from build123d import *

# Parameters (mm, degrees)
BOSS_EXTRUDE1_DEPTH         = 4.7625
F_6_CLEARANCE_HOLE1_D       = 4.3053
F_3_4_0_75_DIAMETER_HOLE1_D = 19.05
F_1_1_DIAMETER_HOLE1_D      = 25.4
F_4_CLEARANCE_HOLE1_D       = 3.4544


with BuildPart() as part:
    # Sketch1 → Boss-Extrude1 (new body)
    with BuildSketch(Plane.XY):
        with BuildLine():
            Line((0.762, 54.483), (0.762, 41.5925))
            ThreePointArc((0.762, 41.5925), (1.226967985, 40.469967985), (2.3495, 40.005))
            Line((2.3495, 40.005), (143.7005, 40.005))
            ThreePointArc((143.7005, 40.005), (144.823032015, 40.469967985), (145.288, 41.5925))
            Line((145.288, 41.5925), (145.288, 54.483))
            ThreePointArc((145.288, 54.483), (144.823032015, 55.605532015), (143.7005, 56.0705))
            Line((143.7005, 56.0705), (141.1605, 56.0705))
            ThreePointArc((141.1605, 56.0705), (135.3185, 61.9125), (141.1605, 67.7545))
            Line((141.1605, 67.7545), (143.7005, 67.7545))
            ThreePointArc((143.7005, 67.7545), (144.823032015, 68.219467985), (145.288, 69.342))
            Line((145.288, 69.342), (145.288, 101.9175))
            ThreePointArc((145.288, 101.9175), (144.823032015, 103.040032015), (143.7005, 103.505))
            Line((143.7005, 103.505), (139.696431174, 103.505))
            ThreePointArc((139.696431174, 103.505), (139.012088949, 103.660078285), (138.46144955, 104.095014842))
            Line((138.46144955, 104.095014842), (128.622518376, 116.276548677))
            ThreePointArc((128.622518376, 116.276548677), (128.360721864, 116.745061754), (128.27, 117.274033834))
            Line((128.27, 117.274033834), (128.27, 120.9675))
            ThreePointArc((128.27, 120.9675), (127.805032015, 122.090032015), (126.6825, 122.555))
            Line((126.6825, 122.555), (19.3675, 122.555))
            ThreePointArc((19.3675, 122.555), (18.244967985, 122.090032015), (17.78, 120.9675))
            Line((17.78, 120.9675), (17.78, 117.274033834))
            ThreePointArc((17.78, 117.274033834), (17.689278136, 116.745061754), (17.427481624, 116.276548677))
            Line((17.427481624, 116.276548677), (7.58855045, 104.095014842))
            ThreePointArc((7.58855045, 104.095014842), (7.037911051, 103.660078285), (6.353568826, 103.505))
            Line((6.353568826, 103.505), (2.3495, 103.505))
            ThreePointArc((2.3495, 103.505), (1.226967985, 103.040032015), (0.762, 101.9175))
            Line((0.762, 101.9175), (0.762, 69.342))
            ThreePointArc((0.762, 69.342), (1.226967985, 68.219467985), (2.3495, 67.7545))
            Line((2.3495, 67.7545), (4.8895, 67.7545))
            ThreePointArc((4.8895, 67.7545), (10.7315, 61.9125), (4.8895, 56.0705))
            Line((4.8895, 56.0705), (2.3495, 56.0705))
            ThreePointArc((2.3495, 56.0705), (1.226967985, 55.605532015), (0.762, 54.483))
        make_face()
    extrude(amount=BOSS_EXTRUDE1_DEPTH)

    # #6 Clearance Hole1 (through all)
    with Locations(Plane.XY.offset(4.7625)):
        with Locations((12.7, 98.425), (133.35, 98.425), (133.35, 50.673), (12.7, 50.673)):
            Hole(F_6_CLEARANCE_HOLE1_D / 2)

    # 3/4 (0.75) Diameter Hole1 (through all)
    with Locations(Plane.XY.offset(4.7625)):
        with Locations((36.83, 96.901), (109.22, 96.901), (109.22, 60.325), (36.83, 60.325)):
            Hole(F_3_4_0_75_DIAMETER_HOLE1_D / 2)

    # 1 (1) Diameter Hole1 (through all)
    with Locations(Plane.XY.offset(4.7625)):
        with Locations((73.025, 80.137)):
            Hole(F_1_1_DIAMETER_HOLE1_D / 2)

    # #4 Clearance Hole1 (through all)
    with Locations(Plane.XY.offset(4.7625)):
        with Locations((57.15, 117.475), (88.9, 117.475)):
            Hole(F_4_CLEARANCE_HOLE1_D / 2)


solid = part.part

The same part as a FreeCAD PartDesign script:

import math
import FreeCAD as App
import Part
import Sketcher
from FreeCAD import Vector
Q = App.Units.Quantity

doc = App.newDocument("Part")
body = doc.addObject("PartDesign::Body", "Body")

sketch1 = body.newObject("Sketcher::SketchObject", "Sketch")
sketch1.AttachmentSupport = (doc.getObject("XY_Plane"), [""])
sketch1.MapMode = "FlatFace"
sketch1.addGeometry([
    Part.LineSegment(Vector(0.8, 54.5, 0), Vector(0.8, 41.6, 0)),
    Part.ArcOfCircle(Part.Circle(Vector(2.3, 41.6, 0), Vector(0, 0, 1), 1.6), math.radians(180), math.radians(270)),
    Part.LineSegment(Vector(2.3, 40, 0), Vector(143.7, 40, 0)),
    Part.ArcOfCircle(Part.Circle(Vector(143.7, 41.6, 0), Vector(0, 0, 1), 1.6), math.radians(-90), math.radians(0)),
    Part.LineSegment(Vector(145.3, 41.6, 0), Vector(145.3, 54.5, 0)),
    Part.ArcOfCircle(Part.Circle(Vector(143.7, 54.5, 0), Vector(0, 0, 1), 1.6), math.radians(0), math.radians(90)),
    Part.LineSegment(Vector(143.7, 56.1, 0), Vector(141.2, 56.1, 0)),
    Part.ArcOfCircle(Part.Circle(Vector(141.2, 61.9, 0), Vector(0, 0, 1), 5.8), math.radians(90), math.radians(270)),
    Part.LineSegment(Vector(141.2, 67.8, 0), Vector(143.7, 67.8, 0)),
    Part.ArcOfCircle(Part.Circle(Vector(143.7, 69.3, 0), Vector(0, 0, 1), 1.6), math.radians(-90), math.radians(0)),
    Part.LineSegment(Vector(145.3, 69.3, 0), Vector(145.3, 101.9, 0)),
    Part.ArcOfCircle(Part.Circle(Vector(143.7, 101.9, 0), Vector(0, 0, 1), 1.6), math.radians(0), math.radians(90)),
    Part.LineSegment(Vector(143.7, 103.5, 0), Vector(139.7, 103.5, 0)),
    Part.ArcOfCircle(Part.Circle(Vector(139.7, 105.1, 0), Vector(0, 0, 1), 1.6), math.radians(-141), math.radians(-90)),
    Part.LineSegment(Vector(138.5, 104.1, 0), Vector(128.6, 116.3, 0)),
    Part.ArcOfCircle(Part.Circle(Vector(129.9, 117.3, 0), Vector(0, 0, 1), 1.6), math.radians(180), math.radians(219)),
    Part.LineSegment(Vector(128.3, 117.3, 0), Vector(128.3, 121, 0)),
    Part.ArcOfCircle(Part.Circle(Vector(126.7, 121, 0), Vector(0, 0, 1), 1.6), math.radians(0), math.radians(90)),
    Part.LineSegment(Vector(126.7, 122.6, 0), Vector(19.4, 122.6, 0)),
    Part.ArcOfCircle(Part.Circle(Vector(19.4, 121, 0), Vector(0, 0, 1), 1.6), math.radians(90), math.radians(180)),
    Part.LineSegment(Vector(17.8, 121, 0), Vector(17.8, 117.3, 0)),
    Part.ArcOfCircle(Part.Circle(Vector(16.2, 117.3, 0), Vector(0, 0, 1), 1.6), math.radians(-39), math.radians(0)),
    Part.LineSegment(Vector(17.4, 116.3, 0), Vector(7.6, 104.1, 0)),
    Part.ArcOfCircle(Part.Circle(Vector(6.4, 105.1, 0), Vector(0, 0, 1), 1.6), math.radians(-90), math.radians(-39)),
    Part.LineSegment(Vector(6.4, 103.5, 0), Vector(2.3, 103.5, 0)),
    Part.ArcOfCircle(Part.Circle(Vector(2.3, 101.9, 0), Vector(0, 0, 1), 1.6), math.radians(90), math.radians(180)),
    Part.LineSegment(Vector(0.8, 101.9, 0), Vector(0.8, 69.3, 0)),
    Part.ArcOfCircle(Part.Circle(Vector(2.3, 69.3, 0), Vector(0, 0, 1), 1.6), math.radians(180), math.radians(270)),
    Part.LineSegment(Vector(2.3, 67.8, 0), Vector(4.9, 67.8, 0)),
    Part.ArcOfCircle(Part.Circle(Vector(4.9, 61.9, 0), Vector(0, 0, 1), 5.8), math.radians(-90), math.radians(90)),
    Part.LineSegment(Vector(4.9, 56.1, 0), Vector(2.3, 56.1, 0)),
    Part.ArcOfCircle(Part.Circle(Vector(2.3, 54.5, 0), Vector(0, 0, 1), 1.6), math.radians(90), math.radians(180)),
], False)
sketch1.addConstraint([
    Sketcher.Constraint("Tangent", 0, 2, 1, 1),
    Sketcher.Constraint("Tangent", 1, 2, 2, 1),
    Sketcher.Constraint("Tangent", 2, 2, 3, 1),
    Sketcher.Constraint("Tangent", 3, 2, 4, 1),
    Sketcher.Constraint("Tangent", 4, 2, 5, 1),
    Sketcher.Constraint("Tangent", 5, 2, 6, 1),
    Sketcher.Constraint("Tangent", 6, 2, 7, 2),
    Sketcher.Constraint("Tangent", 7, 1, 8, 1),
    Sketcher.Constraint("Tangent", 8, 2, 9, 1),
    Sketcher.Constraint("Tangent", 9, 2, 10, 1),
    Sketcher.Constraint("Tangent", 10, 2, 11, 1),
    Sketcher.Constraint("Tangent", 11, 2, 12, 1),
    Sketcher.Constraint("Tangent", 12, 2, 13, 2),
    Sketcher.Constraint("Tangent", 13, 1, 14, 1),
    Sketcher.Constraint("Tangent", 14, 2, 15, 2),
    Sketcher.Constraint("Tangent", 15, 1, 16, 1),
    Sketcher.Constraint("Tangent", 16, 2, 17, 1),
    Sketcher.Constraint("Tangent", 17, 2, 18, 1),
    Sketcher.Constraint("Tangent", 18, 2, 19, 1),
    Sketcher.Constraint("Tangent", 19, 2, 20, 1),
    Sketcher.Constraint("Tangent", 20, 2, 21, 2),
    Sketcher.Constraint("Tangent", 21, 1, 22, 1),
    Sketcher.Constraint("Tangent", 22, 2, 23, 2),
    Sketcher.Constraint("Tangent", 23, 1, 24, 1),
    Sketcher.Constraint("Tangent", 24, 2, 25, 1),
    Sketcher.Constraint("Tangent", 25, 2, 26, 1),
    Sketcher.Constraint("Tangent", 26, 2, 27, 1),
    Sketcher.Constraint("Tangent", 27, 2, 28, 1),
    Sketcher.Constraint("Tangent", 28, 2, 29, 2),
    Sketcher.Constraint("Tangent", 29, 1, 30, 1),
    Sketcher.Constraint("Tangent", 30, 2, 31, 1),
    Sketcher.Constraint("Tangent", 31, 2, 0, 1),
    Sketcher.Constraint("Vertical", 0),
    Sketcher.Constraint("Horizontal", 2),
    Sketcher.Constraint("Vertical", 4),
    Sketcher.Constraint("Horizontal", 6),
    Sketcher.Constraint("Horizontal", 8),
    Sketcher.Constraint("Vertical", 10),
    Sketcher.Constraint("Horizontal", 12),
    Sketcher.Constraint("Vertical", 16),
    Sketcher.Constraint("Horizontal", 18),
    Sketcher.Constraint("Vertical", 20),
    Sketcher.Constraint("Horizontal", 24),
    Sketcher.Constraint("Vertical", 26),
    Sketcher.Constraint("Horizontal", 28),
    Sketcher.Constraint("Horizontal", 30),
    Sketcher.Constraint("Equal", 1, 3),
    Sketcher.Constraint("Equal", 3, 5),
    Sketcher.Constraint("Equal", 5, 9),
    Sketcher.Constraint("Equal", 9, 11),
    Sketcher.Constraint("Equal", 11, 13),
    Sketcher.Constraint("Equal", 13, 15),
    Sketcher.Constraint("Equal", 15, 17),
    Sketcher.Constraint("Equal", 17, 19),
    Sketcher.Constraint("Equal", 19, 21),
    Sketcher.Constraint("Equal", 21, 23),
    Sketcher.Constraint("Equal", 23, 25),
    Sketcher.Constraint("Equal", 25, 27),
    Sketcher.Constraint("Equal", 7, 29),
    Sketcher.Constraint("Equal", 27, 31),
    Sketcher.Constraint("Horizontal", 15, 3, 21, 3),
    Sketcher.Constraint("Horizontal", 13, 3, 23, 3),
    Sketcher.Constraint("Horizontal", 9, 3, 27, 3),
    Sketcher.Constraint("Horizontal", 14, 2, 21, 1),
    Sketcher.Constraint("Vertical", 5, 3, 9, 3),
    Sketcher.Constraint("Vertical", 1, 3, 25, 3),
    Sketcher.Constraint("Equal", 12, 24),
    Sketcher.Constraint("Equal", 8, 28),
    Sketcher.Constraint("Radius", 7, Q("0.23 in")),
    Sketcher.Constraint("DistanceX", 6, 2, 6, 1, Q("0.1 in")),
    Sketcher.Constraint("Radius", 1, Q("0.0625 in")),
    Sketcher.Constraint("DistanceX", -1, 1, 19, 2, Q("0.7 in")),
    Sketcher.Constraint("DistanceY", 3, 3, 7, 3, Q("0.8 in")),
    Sketcher.Constraint("DistanceY", 7, 3, 13, 3, Q("1.7 in")),
    Sketcher.Constraint("DistanceX", 2, 1, 2, 2, Q("5.565 in")),
    Sketcher.Constraint("DistanceX", 18, 2, 18, 1, Q("4.225 in")),
    Sketcher.Constraint("DistanceY", -1, 1, 9, 3, Q("2.73 in")),
    Sketcher.Constraint("DistanceY", 11, 3, 17, 3, Q("0.75 in")),
    Sketcher.Constraint("DistanceX", 12, 2, 12, 1, 4.004069),
    Sketcher.Constraint("DistanceY", 16, 1, 16, 2, 3.693466),
])
pad1 = body.newObject("PartDesign::Pad", "Pad")
pad1.Profile = sketch1
pad1.Length = Q("0.1875 in")

sketch2 = body.newObject("Sketcher::SketchObject", "Sketch001")
sketch2.AttachmentSupport = (doc.getObject("XY_Plane"), [""])
sketch2.MapMode = "FlatFace"
sketch2.AttachmentOffset = App.Placement(Vector(0, 0, 0.1875 * 25.4), App.Rotation())
sketch2.addGeometry([
    Part.Circle(Vector(12.7, 98.4, 0), Vector(0, 0, 1), 2.2),
    Part.Circle(Vector(133.3, 98.4, 0), Vector(0, 0, 1), 2.2),
    Part.Circle(Vector(133.3, 50.7, 0), Vector(0, 0, 1), 2.2),
    Part.Circle(Vector(12.7, 50.7, 0), Vector(0, 0, 1), 2.2),
], False)
sketch2.addConstraint([
    Sketcher.Constraint("Equal", 0, 1),
    Sketcher.Constraint("Equal", 1, 2),
    Sketcher.Constraint("Equal", 2, 3),
    Sketcher.Constraint("Horizontal", 0, 3, 1, 3),
    Sketcher.Constraint("Horizontal", 2, 3, 3, 3),
    Sketcher.Constraint("Vertical", 1, 3, 2, 3),
    Sketcher.Constraint("Vertical", 0, 3, 3, 3),
    Sketcher.Constraint("Diameter", 0, Q("0.1695 in")),
    Sketcher.Constraint("DistanceX", -1, 1, 0, 3, Q("0.5 in")),
    Sketcher.Constraint("DistanceX", -1, 1, 1, 3, Q("5.25 in")),
    Sketcher.Constraint("DistanceY", 2, 3, 1, 3, Q("1.88 in")),
    Sketcher.Constraint("DistanceY", -1, 1, 0, 3, Q("3.875 in")),
])
doc.recompute()
hole = body.newObject("PartDesign::Hole", "Hole")
hole.Profile = sketch2
hole.ThreadType = "None"
hole.Diameter = Q("0.1695 in")
hole.DepthType = "ThroughAll"

sketch3 = body.newObject("Sketcher::SketchObject", "Sketch002")
sketch3.AttachmentSupport = (doc.getObject("XY_Plane"), [""])
sketch3.MapMode = "FlatFace"
sketch3.AttachmentOffset = App.Placement(Vector(0, 0, 0.1875 * 25.4), App.Rotation())
sketch3.addGeometry([
    Part.Circle(Vector(37, 97, 0), Vector(0, 0, 1), 10),
    Part.Circle(Vector(109, 97, 0), Vector(0, 0, 1), 10),
    Part.Circle(Vector(109, 60, 0), Vector(0, 0, 1), 10),
    Part.Circle(Vector(37, 60, 0), Vector(0, 0, 1), 10),
], False)
sketch3.addConstraint([
    Sketcher.Constraint("Equal", 0, 1),
    Sketcher.Constraint("Equal", 1, 2),
    Sketcher.Constraint("Equal", 2, 3),
    Sketcher.Constraint("Horizontal", 0, 3, 1, 3),
    Sketcher.Constraint("Horizontal", 2, 3, 3, 3),
    Sketcher.Constraint("Vertical", 1, 3, 2, 3),
    Sketcher.Constraint("Vertical", 0, 3, 3, 3),
    Sketcher.Constraint("Diameter", 0, Q("0.75 in")),
    Sketcher.Constraint("DistanceX", -1, 1, 1, 3, Q("4.3 in")),
    Sketcher.Constraint("DistanceX", -1, 1, 0, 3, Q("1.45 in")),
    Sketcher.Constraint("DistanceY", 2, 3, 1, 3, Q("1.44 in")),
    Sketcher.Constraint("DistanceY", -1, 1, 0, 3, Q("3.815 in")),
])
doc.recompute()
hole2 = body.newObject("PartDesign::Hole", "Hole001")
hole2.Profile = sketch3
hole2.ThreadType = "None"
hole2.Diameter = Q("0.75 in")
hole2.DepthType = "ThroughAll"

sketch4 = body.newObject("Sketcher::SketchObject", "Sketch003")
sketch4.AttachmentSupport = (doc.getObject("XY_Plane"), [""])
sketch4.MapMode = "FlatFace"
sketch4.AttachmentOffset = App.Placement(Vector(0, 0, 0.1875 * 25.4), App.Rotation())
sketch4.addGeometry(Part.Circle(Vector(73, 80, 0), Vector(0, 0, 1), 13), False)
sketch4.addConstraint([
    Sketcher.Constraint("Diameter", 0, Q("1 in")),
    Sketcher.Constraint("DistanceX", -1, 1, 0, 3, Q("2.875 in")),
    Sketcher.Constraint("DistanceY", -1, 1, 0, 3, Q("3.155 in")),
])
doc.recompute()
hole3 = body.newObject("PartDesign::Hole", "Hole002")
hole3.Profile = sketch4
hole3.ThreadType = "None"
hole3.Diameter = Q("1 in")
hole3.DepthType = "ThroughAll"

sketch5 = body.newObject("Sketcher::SketchObject", "Sketch004")
sketch5.AttachmentSupport = (doc.getObject("XY_Plane"), [""])
sketch5.MapMode = "FlatFace"
sketch5.AttachmentOffset = App.Placement(Vector(0, 0, 0.1875 * 25.4), App.Rotation())
sketch5.addGeometry([
    Part.Circle(Vector(57.1, 117.5, 0), Vector(0, 0, 1), 1.7),
    Part.Circle(Vector(88.9, 117.5, 0), Vector(0, 0, 1), 1.7),
], False)
sketch5.addConstraint([
    Sketcher.Constraint("Equal", 0, 1),
    Sketcher.Constraint("Horizontal", 0, 3, 1, 3),
    Sketcher.Constraint("Diameter", 0, Q("0.136 in")),
    Sketcher.Constraint("DistanceX", -1, 1, 1, 3, Q("3.5 in")),
    Sketcher.Constraint("DistanceX", -1, 1, 0, 3, Q("2.25 in")),
    Sketcher.Constraint("DistanceY", -1, 1, 0, 3, Q("4.625 in")),
])
doc.recompute()
hole4 = body.newObject("PartDesign::Hole", "Hole003")
hole4.Profile = sketch5
hole4.ThreadType = "None"
hole4.Diameter = Q("0.136 in")
hole4.DepthType = "ThroughAll"

doc.recompute()
